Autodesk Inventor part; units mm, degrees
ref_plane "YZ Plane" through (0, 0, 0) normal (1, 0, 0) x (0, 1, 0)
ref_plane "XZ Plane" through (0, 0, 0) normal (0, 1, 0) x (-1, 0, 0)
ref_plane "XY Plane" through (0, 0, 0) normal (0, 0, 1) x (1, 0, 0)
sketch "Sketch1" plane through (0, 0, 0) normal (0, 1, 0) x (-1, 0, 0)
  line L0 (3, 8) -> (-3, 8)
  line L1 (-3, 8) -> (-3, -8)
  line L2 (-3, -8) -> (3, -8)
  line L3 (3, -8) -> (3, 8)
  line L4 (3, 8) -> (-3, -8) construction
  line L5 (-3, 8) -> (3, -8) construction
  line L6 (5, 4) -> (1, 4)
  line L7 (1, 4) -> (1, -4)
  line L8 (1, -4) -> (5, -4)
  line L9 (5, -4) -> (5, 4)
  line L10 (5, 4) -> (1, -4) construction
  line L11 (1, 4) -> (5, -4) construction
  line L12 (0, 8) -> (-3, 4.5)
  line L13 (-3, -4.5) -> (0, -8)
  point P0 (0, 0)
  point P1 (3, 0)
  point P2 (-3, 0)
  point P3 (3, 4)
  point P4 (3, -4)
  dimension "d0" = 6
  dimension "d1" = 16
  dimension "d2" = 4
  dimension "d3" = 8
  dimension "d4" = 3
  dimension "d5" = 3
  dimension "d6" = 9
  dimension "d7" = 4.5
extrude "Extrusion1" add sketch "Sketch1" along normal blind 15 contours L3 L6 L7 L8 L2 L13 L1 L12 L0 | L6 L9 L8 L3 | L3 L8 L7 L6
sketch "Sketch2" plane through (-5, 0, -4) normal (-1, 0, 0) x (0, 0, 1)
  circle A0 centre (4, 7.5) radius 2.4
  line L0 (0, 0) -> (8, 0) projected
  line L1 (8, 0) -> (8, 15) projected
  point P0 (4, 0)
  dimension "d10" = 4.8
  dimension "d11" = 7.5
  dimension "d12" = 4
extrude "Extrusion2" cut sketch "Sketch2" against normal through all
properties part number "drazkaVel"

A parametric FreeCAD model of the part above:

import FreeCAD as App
import Part
import Sketcher

doc = App.newDocument("Part")
params = doc.addObject("Spreadsheet::Sheet", "Params")
for row, (alias, value) in enumerate([
    ("sketch1_width", "3 mm"),
    ("sketch1_height", "4 mm"),
    ("sketch1_height2", "9 mm"),
    ("sketch1_height3", "8 mm"),
    ("pad1_length", "15 mm"),
    ("sketch2_diameter", "4.8 mm"),
], start=1):
    params.set(f"A{row}", alias)
    params.set(f"B{row}", "=" + value)
    params.setAlias(f"B{row}", alias)

body = doc.addObject("PartDesign::Body", "Body")

sketch1 = doc.addObject("Sketcher::SketchObject", "Sketch")
body.addObject(sketch1)
sketch1.AttachmentSupport = (doc.XZ_Plane, [""])
sketch1.MapMode = "FlatFace"
sketch1.addGeometry([
    Part.LineSegment(App.Vector(-3, 4, 0), App.Vector(-3, 8, 0)),
    Part.LineSegment(App.Vector(-3, 8, 0), App.Vector(0, 8, 0)),
    Part.LineSegment(App.Vector(0, 8, 0), App.Vector(3, 4.5, 0)),
    Part.LineSegment(App.Vector(3, 4.5, 0), App.Vector(3, -4.5, 0)),
    Part.LineSegment(App.Vector(3, -4.5, 0), App.Vector(0, -8, 0)),
    Part.LineSegment(App.Vector(0, -8, 0), App.Vector(-3, -8, 0)),
    Part.LineSegment(App.Vector(-3, -8, 0), App.Vector(-3, -4, 0)),
    Part.LineSegment(App.Vector(-3, -4, 0), App.Vector(-5, -4, 0)),
    Part.LineSegment(App.Vector(-5, -4, 0), App.Vector(-5, 4, 0)),
    Part.LineSegment(App.Vector(-5, 4, 0), App.Vector(-3, 4, 0)),
], False)
sketch1.addConstraint([
    Sketcher.Constraint("Coincident", 0, 2, 1, 1),
    Sketcher.Constraint("Coincident", 1, 2, 2, 1),
    Sketcher.Constraint("Coincident", 2, 2, 3, 1),
    Sketcher.Constraint("Coincident", 3, 2, 4, 1),
    Sketcher.Constraint("Coincident", 4, 2, 5, 1),
    Sketcher.Constraint("Coincident", 5, 2, 6, 1),
    Sketcher.Constraint("Coincident", 6, 2, 7, 1),
    Sketcher.Constraint("Coincident", 7, 2, 8, 1),
    Sketcher.Constraint("Coincident", 8, 2, 9, 1),
    Sketcher.Constraint("Coincident", 9, 2, 0, 1),
    Sketcher.Constraint("Vertical", 0),
    Sketcher.Constraint("Horizontal", 1),
    Sketcher.Constraint("Vertical", 3),
    Sketcher.Constraint("Horizontal", 5),
    Sketcher.Constraint("Vertical", 6),
    Sketcher.Constraint("Horizontal", 7),
    Sketcher.Constraint("Vertical", 8),
    Sketcher.Constraint("Horizontal", 9),
    Sketcher.Constraint("Symmetric", 1, 2, 4, 2, -1, 1),
    Sketcher.Constraint("Symmetric", 6, 2, 9, 2, -1),
    Sketcher.Constraint("PointOnObject", 1, 2, -2),
    Sketcher.Constraint("Equal", 2, 4),
    Sketcher.Constraint("DistanceX", 1, 1, 1, 2, 3.0),
    Sketcher.Constraint("DistanceY", 0, 1, 0, 2, 4.0),
    Sketcher.Constraint("DistanceY", 3, 2, 3, 1, 9.0),
    Sketcher.Constraint("DistanceY", 8, 1, 8, 2, 8.0),
    Sketcher.Constraint("DistanceX", -1, 1, 2, 2, 3.0),
    Sketcher.Constraint("DistanceX", 7, 2, 3, 2, 8.0),
])
sketch1.setExpression("Constraints[22]", "Params.sketch1_width")
sketch1.setExpression("Constraints[23]", "Params.sketch1_height")
sketch1.setExpression("Constraints[24]", "Params.sketch1_height2")
sketch1.setExpression("Constraints[25]", "Params.sketch1_height3")
pad1 = doc.addObject("PartDesign::Pad", "Pad")
body.addObject(pad1)
pad1.Profile = sketch1
pad1.setExpression("Length", "Params.pad1_length")
pad1.Reversed = True

sketch2 = doc.addObject("Sketcher::SketchObject", "Sketch001")
body.addObject(sketch2)
sketch2.AttachmentSupport = (doc.YZ_Plane, [""])
sketch2.MapMode = "FlatFace"
sketch2.AttachmentOffset = App.Placement(App.Vector(0, 0, -5), App.Rotation())
sketch2.addGeometry(Part.Circle(App.Vector(7.5, 0, 0), App.Vector(0, 0, 1), 2.4), False)
sketch2.addConstraint([
    Sketcher.Constraint("PointOnObject", 0, 3, -1),
    Sketcher.Constraint("Diameter", 0, 4.8),
    Sketcher.Constraint("DistanceX", -1, 1, 0, 3, 7.5),
])
sketch2.setExpression("Constraints[1]", "Params.sketch2_diameter")
pocket1 = doc.addObject("PartDesign::Pocket", "Pocket")
body.addObject(pocket1)
pocket1.Profile = sketch2
pocket1.Type = "ThroughAll"
pocket1.Reversed = True

doc.recompute()
